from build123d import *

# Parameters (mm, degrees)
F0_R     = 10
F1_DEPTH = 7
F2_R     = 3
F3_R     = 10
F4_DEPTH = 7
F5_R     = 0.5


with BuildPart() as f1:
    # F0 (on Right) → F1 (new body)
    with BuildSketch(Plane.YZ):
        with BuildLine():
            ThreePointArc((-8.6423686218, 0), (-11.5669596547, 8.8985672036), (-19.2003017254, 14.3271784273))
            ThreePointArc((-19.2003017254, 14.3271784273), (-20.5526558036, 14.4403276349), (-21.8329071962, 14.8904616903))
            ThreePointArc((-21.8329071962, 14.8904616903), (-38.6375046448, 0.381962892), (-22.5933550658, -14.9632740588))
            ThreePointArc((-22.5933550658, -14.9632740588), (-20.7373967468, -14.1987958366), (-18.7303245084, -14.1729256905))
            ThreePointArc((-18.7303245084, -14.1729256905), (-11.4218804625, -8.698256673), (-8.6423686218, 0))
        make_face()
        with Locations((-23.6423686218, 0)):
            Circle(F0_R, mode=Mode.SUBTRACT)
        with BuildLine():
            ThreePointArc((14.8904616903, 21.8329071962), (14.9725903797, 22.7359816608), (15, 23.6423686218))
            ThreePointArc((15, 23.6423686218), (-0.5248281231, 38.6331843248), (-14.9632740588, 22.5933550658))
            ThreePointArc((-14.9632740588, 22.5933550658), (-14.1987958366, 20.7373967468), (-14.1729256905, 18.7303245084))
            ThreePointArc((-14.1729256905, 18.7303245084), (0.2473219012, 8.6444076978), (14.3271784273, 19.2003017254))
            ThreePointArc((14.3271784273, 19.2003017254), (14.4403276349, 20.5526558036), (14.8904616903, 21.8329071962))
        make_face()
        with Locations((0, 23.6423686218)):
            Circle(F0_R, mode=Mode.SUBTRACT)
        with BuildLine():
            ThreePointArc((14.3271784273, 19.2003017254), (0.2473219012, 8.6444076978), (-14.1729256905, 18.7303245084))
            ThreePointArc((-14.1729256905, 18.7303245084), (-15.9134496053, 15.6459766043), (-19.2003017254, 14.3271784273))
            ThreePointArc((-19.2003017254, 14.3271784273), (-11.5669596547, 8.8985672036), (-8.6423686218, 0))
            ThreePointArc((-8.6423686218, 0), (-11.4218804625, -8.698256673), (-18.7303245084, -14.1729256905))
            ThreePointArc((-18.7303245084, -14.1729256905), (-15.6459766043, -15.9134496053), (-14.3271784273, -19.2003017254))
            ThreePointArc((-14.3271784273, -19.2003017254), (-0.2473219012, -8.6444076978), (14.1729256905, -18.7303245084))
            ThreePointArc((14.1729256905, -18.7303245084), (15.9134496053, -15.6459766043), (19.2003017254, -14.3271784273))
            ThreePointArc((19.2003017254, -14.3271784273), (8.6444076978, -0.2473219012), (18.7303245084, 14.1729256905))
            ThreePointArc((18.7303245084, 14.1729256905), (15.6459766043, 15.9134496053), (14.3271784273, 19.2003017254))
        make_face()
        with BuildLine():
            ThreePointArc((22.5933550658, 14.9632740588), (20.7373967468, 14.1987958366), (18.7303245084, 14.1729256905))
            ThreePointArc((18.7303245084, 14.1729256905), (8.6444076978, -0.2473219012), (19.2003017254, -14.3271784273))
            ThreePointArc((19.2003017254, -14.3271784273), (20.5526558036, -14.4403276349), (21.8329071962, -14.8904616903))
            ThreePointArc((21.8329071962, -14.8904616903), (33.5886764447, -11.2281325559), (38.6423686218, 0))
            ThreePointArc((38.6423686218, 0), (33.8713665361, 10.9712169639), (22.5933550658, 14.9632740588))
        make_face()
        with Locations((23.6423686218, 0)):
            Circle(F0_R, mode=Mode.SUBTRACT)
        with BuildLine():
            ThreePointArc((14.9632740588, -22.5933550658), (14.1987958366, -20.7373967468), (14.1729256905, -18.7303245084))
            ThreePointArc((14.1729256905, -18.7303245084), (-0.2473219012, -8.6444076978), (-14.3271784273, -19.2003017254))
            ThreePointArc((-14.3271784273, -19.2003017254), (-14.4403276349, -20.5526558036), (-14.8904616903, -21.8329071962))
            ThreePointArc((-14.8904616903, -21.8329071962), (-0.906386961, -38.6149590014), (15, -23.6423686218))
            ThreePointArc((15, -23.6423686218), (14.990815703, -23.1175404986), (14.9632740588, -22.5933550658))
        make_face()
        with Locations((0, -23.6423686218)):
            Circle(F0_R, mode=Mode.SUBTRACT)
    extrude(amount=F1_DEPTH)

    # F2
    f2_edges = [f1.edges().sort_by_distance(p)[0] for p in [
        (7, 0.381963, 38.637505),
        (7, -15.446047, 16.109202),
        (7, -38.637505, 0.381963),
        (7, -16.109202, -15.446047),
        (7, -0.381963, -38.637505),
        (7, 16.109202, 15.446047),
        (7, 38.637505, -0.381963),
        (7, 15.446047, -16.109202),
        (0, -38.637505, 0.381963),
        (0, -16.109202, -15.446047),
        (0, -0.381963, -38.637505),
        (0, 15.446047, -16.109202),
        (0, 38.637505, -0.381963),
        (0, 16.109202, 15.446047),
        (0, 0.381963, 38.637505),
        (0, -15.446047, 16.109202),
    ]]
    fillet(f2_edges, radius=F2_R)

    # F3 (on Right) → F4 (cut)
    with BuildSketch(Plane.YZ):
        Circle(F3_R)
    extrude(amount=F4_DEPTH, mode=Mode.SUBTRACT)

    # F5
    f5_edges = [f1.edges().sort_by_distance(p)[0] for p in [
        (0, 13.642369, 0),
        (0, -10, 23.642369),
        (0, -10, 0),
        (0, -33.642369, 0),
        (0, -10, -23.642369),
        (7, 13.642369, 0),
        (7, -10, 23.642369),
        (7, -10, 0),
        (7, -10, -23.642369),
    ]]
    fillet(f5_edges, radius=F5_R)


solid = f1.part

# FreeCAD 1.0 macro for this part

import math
import FreeCAD as App
import Part
import Sketcher
Q = App.Units.Quantity


def edges_at(feature, points):
    """Names of the edges that pass closest to the given points."""
    edges = feature.Shape.Edges
    near = lambda p: min(range(len(edges)), key=lambda i: edges[i].distToShape(Part.Vertex(*p))[0])
    return sorted({f"Edge{near(p) + 1}" for p in points})

doc = App.newDocument("Part")
body = doc.addObject("PartDesign::Body", "Body")

sketch1 = body.newObject("Sketcher::SketchObject", "Sketch")
sketch1.AttachmentSupport = (doc.getObject("YZ_Plane"), [""])
sketch1.MapMode = "FlatFace"
sketch1.addGeometry(Part.ArcOfCircle(Part.Circle(App.Vector(-19.434505, 19.666208, 0), App.Vector(0, 0, 1), 5.344164), math.radians(-116.666021), math.radians(-87.488263)), False)
sketch1.addGeometry(Part.ArcOfCircle(Part.Circle(App.Vector(-23.642369, 0, 0), App.Vector(0, 0, 1), 15), math.radians(83.071493), math.radians(274.01021)), False)
sketch1.addGeometry(Part.ArcOfCircle(Part.Circle(App.Vector(-19.666208, -19.434505, 0), App.Vector(0, 0, 1), 5.344164), math.radians(79.914209), math.radians(123.211264)), False)
sketch1.addGeometry(Part.ArcOfCircle(Part.Circle(App.Vector(-19.666208, -19.434505, 0), App.Vector(0, 0, 1), 5.344164), math.radians(2.511737), math.radians(79.914209)), False)
sketch1.addGeometry(Part.ArcOfCircle(Part.Circle(App.Vector(-19.666208, -19.434505, 0), App.Vector(0, 0, 1), 5.344164), math.radians(-26.666021), math.radians(2.511737)), False)
sketch1.addGeometry(Part.ArcOfCircle(Part.Circle(App.Vector(0, -23.642369, 0), App.Vector(0, 0, 1), 15), math.radians(173.071493), math.radians(360)), False)
sketch1.addGeometry(Part.ArcOfCircle(Part.Circle(App.Vector(0, -23.642369, 0), App.Vector(0, 0, 1), 15), math.radians(0), math.radians(4.01021)), False)
sketch1.addGeometry(Part.ArcOfCircle(Part.Circle(App.Vector(19.434505, -19.666208, 0), App.Vector(0, 0, 1), 5.344164), math.radians(169.914209), math.radians(213.211264)), False)
sketch1.addGeometry(Part.ArcOfCircle(Part.Circle(App.Vector(19.434505, -19.666208, 0), App.Vector(0, 0, 1), 5.344164), math.radians(92.511737), math.radians(169.914209)), False)
sketch1.addGeometry(Part.ArcOfCircle(Part.Circle(App.Vector(19.434505, -19.666208, 0), App.Vector(0, 0, 1), 5.344164), math.radians(63.333979), math.radians(92.511737)), False)
sketch1.addGeometry(Part.ArcOfCircle(Part.Circle(App.Vector(23.642369, 0, 0), App.Vector(0, 0, 1), 15), math.radians(-96.928507), math.radians(0)), False)
sketch1.addGeometry(Part.ArcOfCircle(Part.Circle(App.Vector(23.642369, 0, 0), App.Vector(0, 0, 1), 15), math.radians(0), math.radians(94.01021)), False)
sketch1.addGeometry(Part.ArcOfCircle(Part.Circle(App.Vector(19.666208, 19.434505, 0), App.Vector(0, 0, 1), 5.344164), math.radians(-100.085791), math.radians(-56.788736)), False)
sketch1.addGeometry(Part.ArcOfCircle(Part.Circle(App.Vector(19.666208, 19.434505, 0), App.Vector(0, 0, 1), 5.344164), math.radians(-177.488263), math.radians(-100.085791)), False)
sketch1.addGeometry(Part.ArcOfCircle(Part.Circle(App.Vector(19.666208, 19.434505, 0), App.Vector(0, 0, 1), 5.344164), math.radians(153.333979), math.radians(182.511737)), False)
sketch1.addGeometry(Part.ArcOfCircle(Part.Circle(App.Vector(0, 23.642369, 0), App.Vector(0, 0, 1), 15), math.radians(-6.928507), math.radians(0)), False)
sketch1.addGeometry(Part.ArcOfCircle(Part.Circle(App.Vector(0, 23.642369, 0), App.Vector(0, 0, 1), 15), math.radians(0), math.radians(184.01021)), False)
sketch1.addGeometry(Part.ArcOfCircle(Part.Circle(App.Vector(-19.434505, 19.666208, 0), App.Vector(0, 0, 1), 5.344164), math.radians(-10.085791), math.radians(33.211264)), False)
sketch1.addGeometry(Part.ArcOfCircle(Part.Circle(App.Vector(-19.434505, 19.666208, 0), App.Vector(0, 0, 1), 5.344164), math.radians(-87.488263), math.radians(-10.085791)), False)
sketch1.addGeometry(Part.Circle(App.Vector(0, -23.642369, 0), App.Vector(0, 0, 1), 10), False)
sketch1.addGeometry(Part.Circle(App.Vector(-23.642369, 0, 0), App.Vector(0, 0, 1), 10), False)
sketch1.addGeometry(Part.Circle(App.Vector(23.642369, 0, 0), App.Vector(0, 0, 1), 10), False)
sketch1.addGeometry(Part.Circle(App.Vector(0, 23.642369, 0), App.Vector(0, 0, 1), 10), False)
sketch1.addConstraint(Sketcher.Constraint("Coincident", 0, 1, 1, 1))
sketch1.addConstraint(Sketcher.Constraint("Coincident", 1, 2, 2, 2))
sketch1.addConstraint(Sketcher.Constraint("Tangent", 2, 1, 3, 2))
sketch1.addConstraint(Sketcher.Constraint("Tangent", 3, 1, 4, 2))
sketch1.addConstraint(Sketcher.Constraint("Coincident", 4, 1, 5, 1))
sketch1.addConstraint(Sketcher.Constraint("Tangent", 5, 2, 6, 1))
sketch1.addConstraint(Sketcher.Constraint("Coincident", 6, 2, 7, 2))
sketch1.addConstraint(Sketcher.Constraint("Tangent", 7, 1, 8, 2))
sketch1.addConstraint(Sketcher.Constraint("Tangent", 8, 1, 9, 2))
sketch1.addConstraint(Sketcher.Constraint("Coincident", 9, 1, 10, 1))
sketch1.addConstraint(Sketcher.Constraint("Tangent", 10, 2, 11, 1))
sketch1.addConstraint(Sketcher.Constraint("Coincident", 11, 2, 12, 2))
sketch1.addConstraint(Sketcher.Constraint("Tangent", 12, 1, 13, 2))
sketch1.addConstraint(Sketcher.Constraint("Tangent", 13, 1, 14, 2))
sketch1.addConstraint(Sketcher.Constraint("Coincident", 14, 1, 15, 1))
sketch1.addConstraint(Sketcher.Constraint("Tangent", 15, 2, 16, 1))
sketch1.addConstraint(Sketcher.Constraint("Coincident", 16, 2, 17, 2))
sketch1.addConstraint(Sketcher.Constraint("Tangent", 17, 1, 18, 2))
sketch1.addConstraint(Sketcher.Constraint("Tangent", 18, 1, 0, 2))
sketch1.addConstraint(Sketcher.Constraint("Coincident", 4, 3, 2, 3))
sketch1.addConstraint(Sketcher.Constraint("Coincident", 9, 3, 7, 3))
sketch1.addConstraint(Sketcher.Constraint("Coincident", 14, 3, 12, 3))
sketch1.addConstraint(Sketcher.Constraint("Coincident", 17, 3, 0, 3))
sketch1.addConstraint(Sketcher.Constraint("Coincident", 19, 3, 5, 3))
sketch1.addConstraint(Sketcher.Constraint("Coincident", 20, 3, 1, 3))
sketch1.addConstraint(Sketcher.Constraint("Coincident", 21, 3, 10, 3))
sketch1.addConstraint(Sketcher.Constraint("Coincident", 22, 3, 15, 3))
sketch1.addConstraint(Sketcher.Constraint("Equal", 0, 2))
sketch1.addConstraint(Sketcher.Constraint("Equal", 1, 5))
sketch1.addConstraint(Sketcher.Constraint("Equal", 5, 6))
sketch1.addConstraint(Sketcher.Constraint("Equal", 4, 7))
sketch1.addConstraint(Sketcher.Constraint("Equal", 6, 10))
sketch1.addConstraint(Sketcher.Constraint("Equal", 10, 11))
sketch1.addConstraint(Sketcher.Constraint("Equal", 9, 12))
sketch1.addConstraint(Sketcher.Constraint("Equal", 11, 15))
sketch1.addConstraint(Sketcher.Constraint("Equal", 15, 16))
sketch1.addConstraint(Sketcher.Constraint("Equal", 19, 20))
sketch1.addConstraint(Sketcher.Constraint("Equal", 20, 21))
sketch1.addConstraint(Sketcher.Constraint("Equal", 21, 22))
sketch1.addConstraint(Sketcher.Constraint("Symmetric", 0, 3, 7, 3, -1, 1))
sketch1.addConstraint(Sketcher.Constraint("Symmetric", 1, 3, 10, 3, -1, 1))
sketch1.addConstraint(Sketcher.Constraint("Symmetric", 2, 3, 12, 3, -1, 1))
sketch1.addConstraint(Sketcher.Constraint("Symmetric", 5, 3, 15, 3, -1, 1))
sketch1.addConstraint(Sketcher.Constraint("Symmetric", 5, 2, 15, 2, -1))
sketch1.addConstraint(Sketcher.Constraint("PointOnObject", 1, 3, -1))
sketch1.addConstraint(Sketcher.Constraint("PointOnObject", 10, 2, -1))
sketch1.addConstraint(Sketcher.Constraint("Horizontal", 19, 3, 5, 2))
sketch1.addConstraint(Sketcher.Constraint("Diameter", 19, Q("20 mm")))
sketch1.addConstraint(Sketcher.Constraint("Radius", 1, Q("15 mm")))
sketch1.addConstraint(Sketcher.Constraint("Radius", 0, Q("5.344164 mm")))
sketch1.addConstraint(Sketcher.Constraint("DistanceY", 3, 1, -1, 1, Q("19.200302 mm")))
sketch1.addConstraint(Sketcher.Constraint("DistanceX", -1, 1, 8, 1, Q("19.200302 mm")))
sketch1.addConstraint(Sketcher.Constraint("DistanceY", -1, 1, 13, 1, Q("19.200302 mm")))
sketch1.addConstraint(Sketcher.Constraint("DistanceX", 18, 1, -1, 1, Q("19.200302 mm")))
sketch1.addConstraint(Sketcher.Constraint("DistanceY", -1, 1, 0, 3, Q("19.666208 mm")))
sketch1.addConstraint(Sketcher.Constraint("DistanceX", 1, 3, -1, 1, Q("23.642369 mm")))
sketch1.addConstraint(Sketcher.Constraint("DistanceX", 2, 3, -1, 1, Q("19.666208 mm")))
sketch1.addConstraint(Sketcher.Constraint("DistanceY", 5, 3, -1, 1, Q("23.642369 mm")))
sketch1.addConstraint(Sketcher.Constraint("DistanceY", -1, 1, 0, 1, Q("14.890462 mm")))
sketch1.addConstraint(Sketcher.Constraint("DistanceX", 3, 1, -1, 1, Q("14.327178 mm")))
sketch1.addConstraint(Sketcher.Constraint("DistanceX", 1, 2, 2, 1, Q("3.863031 mm")))
sketch1.addConstraint(Sketcher.Constraint("DistanceX", 7, 1, 6, 2, Q("0.790348 mm")))
sketch1.addConstraint(Sketcher.Constraint("DistanceX", 12, 1, 11, 2, Q("3.863031 mm")))
sketch1.addConstraint(Sketcher.Constraint("DistanceX", 16, 2, 17, 1, Q("0.790348 mm")))
pad1 = body.newObject("PartDesign::Pad", "Pad")
pad1.Profile = sketch1
pad1.Length = 7
doc.recompute()

fillet = body.newObject("PartDesign::Fillet", "Fillet")
fillet.Base = (pad1, edges_at(pad1, [
    (7, -0.525, 38.633),
    (7, -15.913, 15.646),
    (7, -38.638, 0.382),
    (7, -15.646, -15.913),
    (7, -0.906, -38.615),
    (7, 15.646, 15.913),
    (7, 33.589, -11.228),
    (7, 15.913, -15.646),
    (0, -38.638, 0.382),
    (0, -15.646, -15.913),
    (0, -0.906, -38.615),
    (0, 15.913, -15.646),
    (0, 33.589, -11.228),
    (0, 15.646, 15.913),
    (0, -0.525, 38.633),
    (0, -15.913, 15.646),
]))
fillet.Radius = 3

sketch2 = body.newObject("Sketcher::SketchObject", "Sketch001")
sketch2.AttachmentSupport = (doc.getObject("YZ_Plane"), [""])
sketch2.MapMode = "FlatFace"
sketch2.addGeometry(Part.Circle(App.Vector(0, 0, 0), App.Vector(0, 0, 1), 10), False)
sketch2.addConstraint(Sketcher.Constraint("Coincident", 0, 3, -1, 1))
sketch2.addConstraint(Sketcher.Constraint("Diameter", 0, Q("20 mm")))
pocket1 = body.newObject("PartDesign::Pocket", "Pocket")
pocket1.Profile = sketch2
pocket1.Length = 7
pocket1.Reversed = True
doc.recompute()

fillet2 = body.newObject("PartDesign::Fillet", "Fillet001")
fillet2.Base = (pocket1, edges_at(pocket1, [
    (0, 13.642, 0),
    (0, -10, 23.642),
    (0, -10, 0),
    (0, -33.642, 0),
    (0, -10, -23.642),
    (7, 13.642, 0),
    (7, -10, 23.642),
    (7, -10, 0),
    (7, -10, -23.642),
]))
fillet2.Radius = 0.5

doc.recompute()
